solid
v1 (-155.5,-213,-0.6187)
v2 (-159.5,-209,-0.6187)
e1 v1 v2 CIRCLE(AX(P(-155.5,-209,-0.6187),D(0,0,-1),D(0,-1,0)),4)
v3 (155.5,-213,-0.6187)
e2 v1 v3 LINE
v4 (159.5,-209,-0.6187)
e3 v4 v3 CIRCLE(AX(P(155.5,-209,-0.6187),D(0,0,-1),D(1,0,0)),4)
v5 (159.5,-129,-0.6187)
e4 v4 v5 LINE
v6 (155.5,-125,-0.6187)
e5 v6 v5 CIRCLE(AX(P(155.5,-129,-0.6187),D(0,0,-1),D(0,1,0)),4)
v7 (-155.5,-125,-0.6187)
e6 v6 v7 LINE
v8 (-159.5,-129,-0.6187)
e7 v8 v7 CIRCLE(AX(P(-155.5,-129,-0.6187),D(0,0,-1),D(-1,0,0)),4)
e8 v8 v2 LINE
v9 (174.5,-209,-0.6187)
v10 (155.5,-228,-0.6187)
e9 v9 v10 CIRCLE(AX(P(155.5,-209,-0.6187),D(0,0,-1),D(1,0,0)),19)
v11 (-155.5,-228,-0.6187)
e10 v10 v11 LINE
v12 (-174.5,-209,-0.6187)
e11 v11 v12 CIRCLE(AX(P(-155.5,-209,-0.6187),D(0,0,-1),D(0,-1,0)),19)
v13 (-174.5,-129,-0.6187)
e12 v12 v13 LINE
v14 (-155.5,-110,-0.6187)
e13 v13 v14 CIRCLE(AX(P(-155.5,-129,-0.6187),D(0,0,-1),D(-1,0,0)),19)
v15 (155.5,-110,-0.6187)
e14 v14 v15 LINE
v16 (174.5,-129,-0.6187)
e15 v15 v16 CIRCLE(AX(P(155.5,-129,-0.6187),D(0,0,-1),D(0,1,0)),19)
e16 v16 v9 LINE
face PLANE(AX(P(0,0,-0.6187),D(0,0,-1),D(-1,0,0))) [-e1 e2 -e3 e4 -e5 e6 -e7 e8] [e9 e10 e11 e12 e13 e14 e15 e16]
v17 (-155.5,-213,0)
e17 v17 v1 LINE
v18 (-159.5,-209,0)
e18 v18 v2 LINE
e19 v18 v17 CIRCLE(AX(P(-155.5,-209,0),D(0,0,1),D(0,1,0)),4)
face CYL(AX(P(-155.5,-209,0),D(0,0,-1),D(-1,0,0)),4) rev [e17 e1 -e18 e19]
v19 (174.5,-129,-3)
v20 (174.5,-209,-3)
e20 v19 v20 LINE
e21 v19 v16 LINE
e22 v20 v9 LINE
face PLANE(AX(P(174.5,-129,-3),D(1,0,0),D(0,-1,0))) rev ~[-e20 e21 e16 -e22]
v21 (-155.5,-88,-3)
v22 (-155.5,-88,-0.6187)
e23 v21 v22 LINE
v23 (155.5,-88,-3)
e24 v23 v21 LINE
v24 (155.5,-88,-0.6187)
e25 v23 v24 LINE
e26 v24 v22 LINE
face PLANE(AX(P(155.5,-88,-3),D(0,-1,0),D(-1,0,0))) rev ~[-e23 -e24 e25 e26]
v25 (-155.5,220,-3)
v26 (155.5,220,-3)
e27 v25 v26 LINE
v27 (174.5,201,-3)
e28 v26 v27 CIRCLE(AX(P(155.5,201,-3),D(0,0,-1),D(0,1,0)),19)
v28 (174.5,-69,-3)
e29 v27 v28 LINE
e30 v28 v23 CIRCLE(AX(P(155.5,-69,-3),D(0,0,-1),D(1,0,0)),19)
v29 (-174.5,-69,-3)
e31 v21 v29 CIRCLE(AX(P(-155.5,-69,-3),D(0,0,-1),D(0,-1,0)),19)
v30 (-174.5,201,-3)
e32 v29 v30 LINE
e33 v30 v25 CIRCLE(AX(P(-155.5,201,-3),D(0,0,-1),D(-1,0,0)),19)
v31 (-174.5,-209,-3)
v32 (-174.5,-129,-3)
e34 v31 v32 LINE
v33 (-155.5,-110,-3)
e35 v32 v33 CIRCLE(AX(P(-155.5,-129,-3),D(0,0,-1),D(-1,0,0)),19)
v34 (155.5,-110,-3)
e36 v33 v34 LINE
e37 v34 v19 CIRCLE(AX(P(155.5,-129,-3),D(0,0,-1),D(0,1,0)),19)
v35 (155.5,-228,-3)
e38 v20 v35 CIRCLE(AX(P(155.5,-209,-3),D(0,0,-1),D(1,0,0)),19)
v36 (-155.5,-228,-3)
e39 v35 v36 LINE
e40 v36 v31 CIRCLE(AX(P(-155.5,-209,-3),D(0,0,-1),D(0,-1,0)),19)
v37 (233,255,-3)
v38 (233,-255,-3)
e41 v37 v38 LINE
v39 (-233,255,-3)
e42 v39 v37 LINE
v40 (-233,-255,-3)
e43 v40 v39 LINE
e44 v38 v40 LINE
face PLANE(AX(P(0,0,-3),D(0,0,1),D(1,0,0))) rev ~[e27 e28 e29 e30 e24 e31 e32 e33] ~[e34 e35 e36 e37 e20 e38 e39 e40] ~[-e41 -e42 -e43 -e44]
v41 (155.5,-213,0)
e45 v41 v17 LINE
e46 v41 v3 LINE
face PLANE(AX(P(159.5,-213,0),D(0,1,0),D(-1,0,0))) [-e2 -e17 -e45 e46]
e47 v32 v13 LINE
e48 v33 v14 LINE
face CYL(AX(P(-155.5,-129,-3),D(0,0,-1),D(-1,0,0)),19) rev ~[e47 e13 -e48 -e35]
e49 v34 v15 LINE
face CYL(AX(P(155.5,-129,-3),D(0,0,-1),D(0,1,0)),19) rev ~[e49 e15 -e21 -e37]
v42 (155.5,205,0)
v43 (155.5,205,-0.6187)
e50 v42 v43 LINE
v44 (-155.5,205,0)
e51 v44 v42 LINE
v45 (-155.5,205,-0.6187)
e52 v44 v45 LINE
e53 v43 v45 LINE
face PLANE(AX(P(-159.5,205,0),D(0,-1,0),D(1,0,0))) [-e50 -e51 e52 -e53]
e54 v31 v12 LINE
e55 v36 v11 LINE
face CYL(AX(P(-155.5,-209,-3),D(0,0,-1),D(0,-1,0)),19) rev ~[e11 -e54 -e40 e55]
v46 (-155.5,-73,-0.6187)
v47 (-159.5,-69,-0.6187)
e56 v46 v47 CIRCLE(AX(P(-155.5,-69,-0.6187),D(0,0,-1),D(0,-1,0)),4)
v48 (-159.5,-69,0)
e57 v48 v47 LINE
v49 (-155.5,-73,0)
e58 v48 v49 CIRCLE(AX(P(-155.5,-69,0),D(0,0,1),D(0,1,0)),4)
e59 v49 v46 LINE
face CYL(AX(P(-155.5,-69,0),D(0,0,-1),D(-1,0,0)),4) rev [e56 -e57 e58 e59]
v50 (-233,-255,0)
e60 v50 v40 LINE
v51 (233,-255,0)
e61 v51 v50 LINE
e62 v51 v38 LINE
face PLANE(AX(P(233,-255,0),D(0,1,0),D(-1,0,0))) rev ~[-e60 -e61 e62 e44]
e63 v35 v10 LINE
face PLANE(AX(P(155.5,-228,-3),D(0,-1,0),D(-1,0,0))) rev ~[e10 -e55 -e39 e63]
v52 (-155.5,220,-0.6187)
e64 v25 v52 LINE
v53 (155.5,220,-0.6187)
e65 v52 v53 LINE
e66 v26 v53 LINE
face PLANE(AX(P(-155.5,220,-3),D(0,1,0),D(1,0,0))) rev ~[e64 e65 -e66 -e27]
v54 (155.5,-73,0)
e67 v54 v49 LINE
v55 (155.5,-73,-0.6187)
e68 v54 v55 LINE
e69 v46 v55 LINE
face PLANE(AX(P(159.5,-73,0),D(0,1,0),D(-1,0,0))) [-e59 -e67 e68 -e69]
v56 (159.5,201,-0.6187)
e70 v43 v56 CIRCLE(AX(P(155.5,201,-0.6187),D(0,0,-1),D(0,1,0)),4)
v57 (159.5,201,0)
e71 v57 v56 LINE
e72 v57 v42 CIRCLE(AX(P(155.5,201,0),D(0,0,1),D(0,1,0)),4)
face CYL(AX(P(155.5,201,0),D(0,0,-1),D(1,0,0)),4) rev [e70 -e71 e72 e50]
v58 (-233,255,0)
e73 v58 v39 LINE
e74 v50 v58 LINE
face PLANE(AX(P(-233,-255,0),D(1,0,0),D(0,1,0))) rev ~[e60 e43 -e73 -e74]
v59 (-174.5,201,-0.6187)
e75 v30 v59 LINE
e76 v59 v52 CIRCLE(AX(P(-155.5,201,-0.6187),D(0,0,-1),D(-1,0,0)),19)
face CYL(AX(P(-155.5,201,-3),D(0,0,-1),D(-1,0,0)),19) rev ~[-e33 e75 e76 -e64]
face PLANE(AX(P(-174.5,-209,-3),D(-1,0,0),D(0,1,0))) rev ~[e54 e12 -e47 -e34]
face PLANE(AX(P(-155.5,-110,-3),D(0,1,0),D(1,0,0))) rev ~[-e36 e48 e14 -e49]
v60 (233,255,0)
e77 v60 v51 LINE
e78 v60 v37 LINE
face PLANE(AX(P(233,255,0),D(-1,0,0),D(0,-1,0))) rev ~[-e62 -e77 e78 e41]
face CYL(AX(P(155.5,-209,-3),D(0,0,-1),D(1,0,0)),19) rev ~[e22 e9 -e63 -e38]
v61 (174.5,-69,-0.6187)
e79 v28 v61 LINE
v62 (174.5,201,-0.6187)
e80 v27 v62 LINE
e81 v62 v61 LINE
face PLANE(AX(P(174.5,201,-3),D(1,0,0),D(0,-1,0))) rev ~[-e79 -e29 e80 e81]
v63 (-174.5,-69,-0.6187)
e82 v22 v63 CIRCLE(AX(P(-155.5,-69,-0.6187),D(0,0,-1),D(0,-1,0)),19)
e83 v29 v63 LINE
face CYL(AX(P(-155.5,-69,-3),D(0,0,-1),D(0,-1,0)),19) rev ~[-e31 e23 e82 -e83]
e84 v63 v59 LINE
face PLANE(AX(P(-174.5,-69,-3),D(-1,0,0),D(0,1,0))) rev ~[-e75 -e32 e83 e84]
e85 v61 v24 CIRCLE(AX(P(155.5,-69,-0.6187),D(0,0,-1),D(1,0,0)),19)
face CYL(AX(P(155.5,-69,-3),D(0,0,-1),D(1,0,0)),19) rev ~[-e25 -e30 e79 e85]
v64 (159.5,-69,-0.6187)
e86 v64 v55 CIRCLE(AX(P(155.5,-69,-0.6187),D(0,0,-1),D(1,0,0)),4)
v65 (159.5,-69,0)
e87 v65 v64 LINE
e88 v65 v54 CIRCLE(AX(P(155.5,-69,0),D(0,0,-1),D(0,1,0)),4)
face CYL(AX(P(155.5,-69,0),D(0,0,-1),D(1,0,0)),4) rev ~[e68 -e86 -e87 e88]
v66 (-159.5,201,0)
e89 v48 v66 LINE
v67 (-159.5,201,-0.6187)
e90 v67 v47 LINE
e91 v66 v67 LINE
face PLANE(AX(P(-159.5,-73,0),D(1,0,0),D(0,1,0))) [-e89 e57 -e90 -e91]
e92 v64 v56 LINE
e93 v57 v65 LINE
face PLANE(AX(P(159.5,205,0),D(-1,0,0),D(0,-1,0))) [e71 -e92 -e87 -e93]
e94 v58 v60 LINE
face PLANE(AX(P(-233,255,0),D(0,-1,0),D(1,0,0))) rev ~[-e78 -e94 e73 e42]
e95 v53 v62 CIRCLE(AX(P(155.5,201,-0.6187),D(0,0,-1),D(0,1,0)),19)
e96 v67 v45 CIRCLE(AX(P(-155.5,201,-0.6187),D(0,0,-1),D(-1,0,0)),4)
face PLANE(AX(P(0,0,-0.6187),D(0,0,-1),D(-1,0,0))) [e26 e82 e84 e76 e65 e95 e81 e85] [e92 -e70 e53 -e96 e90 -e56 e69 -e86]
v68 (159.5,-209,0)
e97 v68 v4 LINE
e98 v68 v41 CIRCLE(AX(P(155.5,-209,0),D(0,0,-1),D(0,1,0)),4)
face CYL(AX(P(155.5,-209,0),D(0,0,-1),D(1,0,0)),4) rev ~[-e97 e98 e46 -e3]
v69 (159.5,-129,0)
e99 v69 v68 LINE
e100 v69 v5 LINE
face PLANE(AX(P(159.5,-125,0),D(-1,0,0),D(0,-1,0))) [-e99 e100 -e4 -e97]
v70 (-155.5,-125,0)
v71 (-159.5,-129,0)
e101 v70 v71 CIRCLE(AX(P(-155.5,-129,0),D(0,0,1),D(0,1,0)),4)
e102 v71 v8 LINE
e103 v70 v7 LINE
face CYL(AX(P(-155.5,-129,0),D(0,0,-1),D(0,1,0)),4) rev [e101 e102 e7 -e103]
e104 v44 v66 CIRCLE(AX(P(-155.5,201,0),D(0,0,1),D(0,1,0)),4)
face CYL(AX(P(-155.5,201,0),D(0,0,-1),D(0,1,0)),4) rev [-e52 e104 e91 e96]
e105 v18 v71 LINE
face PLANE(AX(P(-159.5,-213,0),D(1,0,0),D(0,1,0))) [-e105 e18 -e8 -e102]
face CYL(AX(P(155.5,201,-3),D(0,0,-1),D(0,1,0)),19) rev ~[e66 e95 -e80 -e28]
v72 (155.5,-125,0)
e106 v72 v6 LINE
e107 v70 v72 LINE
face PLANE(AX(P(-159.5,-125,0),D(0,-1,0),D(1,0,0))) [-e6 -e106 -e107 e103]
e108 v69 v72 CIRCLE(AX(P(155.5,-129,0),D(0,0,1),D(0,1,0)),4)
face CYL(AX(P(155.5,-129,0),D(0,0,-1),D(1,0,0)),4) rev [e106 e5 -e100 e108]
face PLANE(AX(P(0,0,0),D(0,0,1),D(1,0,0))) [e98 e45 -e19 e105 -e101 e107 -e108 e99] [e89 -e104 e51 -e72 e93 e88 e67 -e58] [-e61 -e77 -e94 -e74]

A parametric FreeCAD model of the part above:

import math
import FreeCAD as App
import Part
import Sketcher

V = App.Vector


def edges_at(feature, points):
    """Names of the edges that pass closest to the given points."""
    edges = feature.Shape.Edges
    near = lambda p: min(range(len(edges)), key=lambda i: edges[i].distToShape(Part.Vertex(*p))[0])
    return sorted({f"Edge{near(p) + 1}" for p in points})

doc = App.newDocument("Part")
body = doc.addObject("PartDesign::Body", "Body")

# Sketch on XY plane
sketch1 = doc.addObject("Sketcher::SketchObject", "Sketch")
body.addObject(sketch1)
sketch1.AttachmentSupport = (doc.XY_Plane, [""])
sketch1.MapMode = "FlatFace"
sketch1.addGeometry([
    Part.LineSegment(V(-233, -255, 0), V(233, -255, 0)),
    Part.LineSegment(V(233, -255, 0), V(233, 255, 0)),
    Part.LineSegment(V(233, 255, 0), V(-233, 255, 0)),
    Part.LineSegment(V(-233, 255, 0), V(-233, -255, 0)),
], False)
sketch1.addConstraint([
    Sketcher.Constraint("Coincident", 0, 2, 1, 1),
    Sketcher.Constraint("Coincident", 1, 2, 2, 1),
    Sketcher.Constraint("Coincident", 2, 2, 3, 1),
    Sketcher.Constraint("Coincident", 3, 2, 0, 1),
    Sketcher.Constraint("Horizontal", 0),
    Sketcher.Constraint("Vertical", 1),
    Sketcher.Constraint("Horizontal", 2),
    Sketcher.Constraint("Vertical", 3),
    Sketcher.Constraint("Symmetric", 0, 2, 2, 2, -1, 1),
    Sketcher.Constraint("DistanceX", 0, 1, 0, 2, 466.0),
    Sketcher.Constraint("DistanceY", 1, 1, 1, 2, 510.0),
])
pad1 = doc.addObject("PartDesign::Pad", "Pad")
body.addObject(pad1)
pad1.Profile = sketch1
pad1.Length = 3
pad1.Reversed = True

# Sketch on XY plane
sketch2 = doc.addObject("Sketcher::SketchObject", "Sketch001")
body.addObject(sketch2)
sketch2.AttachmentSupport = (doc.XY_Plane, [""])
sketch2.MapMode = "FlatFace"
sketch2.addGeometry([
    Part.LineSegment(V(-160, -73, 0), V(160, -73, 0)),  # 0
    Part.LineSegment(V(160, -73, 0), V(160, 205, 0)),  # 1
    Part.LineSegment(V(160, 205, 0), V(-160, 205, 0)),  # 2
    Part.LineSegment(V(-160, 205, 0), V(-160, -73, 0)),  # 3
    Part.LineSegment(V(-160, -213, 0), V(160, -213, 0)),  # 4
    Part.LineSegment(V(160, -213, 0), V(160, -125, 0)),  # 5
    Part.LineSegment(V(160, -125, 0), V(-160, -125, 0)),  # 6
    Part.LineSegment(V(-160, -125, 0), V(-160, -213, 0)),  # 7
], False)
sketch2.addConstraint([
    Sketcher.Constraint("Coincident", 0, 2, 1, 1),
    Sketcher.Constraint("Coincident", 1, 2, 2, 1),
    Sketcher.Constraint("Coincident", 2, 2, 3, 1),
    Sketcher.Constraint("Coincident", 3, 2, 0, 1),
    Sketcher.Constraint("Coincident", 4, 2, 5, 1),
    Sketcher.Constraint("Coincident", 5, 2, 6, 1),
    Sketcher.Constraint("Coincident", 6, 2, 7, 1),
    Sketcher.Constraint("Coincident", 7, 2, 4, 1),
    Sketcher.Constraint("Horizontal", 0),
    Sketcher.Constraint("Vertical", 1),
    Sketcher.Constraint("Horizontal", 2),
    Sketcher.Constraint("Vertical", 3),
    Sketcher.Constraint("Horizontal", 4),
    Sketcher.Constraint("Vertical", 5),
    Sketcher.Constraint("Horizontal", 6),
    Sketcher.Constraint("Vertical", 7),
    Sketcher.Constraint("Vertical", 1, 2, 4, 2),
    Sketcher.Constraint("Vertical", 3, 2, 6, 2),
    Sketcher.Constraint("DistanceY", 1, 1, 1, 2, 278.0),
    Sketcher.Constraint("DistanceY", 5, 1, 5, 2, 88.0),
    Sketcher.Constraint("DistanceY", 5, 2, 0, 2, 52.0),
    Sketcher.Constraint("DistanceX", 0, 1, 0, 2, 319.0),
    Sketcher.Constraint("DistanceY", 0, 2, -1, 1, 73.0),
    Sketcher.Constraint("DistanceX", -1, 1, 0, 2, 159.5),
])
pocket1 = doc.addObject("PartDesign::Pocket", "Pocket")
body.addObject(pocket1)
pocket1.Profile = sketch2
pocket1.Type = "ThroughAll"
doc.recompute()

fillet = doc.addObject("PartDesign::Fillet", "Fillet")
body.addObject(fillet)
fillet.Base = (pocket1, edges_at(pocket1, [
    (-159.5, 205, -1.5),
    (159.5, 205, -1.5),
    (159.5, -73, -1.5),
    (-159.5, -73, -1.5),
    (-159.5, -125, -1.5),
    (159.5, -125, -1.5),
    (159.5, -213, -1.5),
    (-159.5, -213, -1.5),
]))
fillet.Radius = 4

# Sketch on XY plane
sketch3 = doc.addObject("Sketcher::SketchObject", "Sketch002")
body.addObject(sketch3)
sketch3.AttachmentSupport = (doc.XY_Plane, [""])
sketch3.MapMode = "FlatFace"
sketch3.AttachmentOffset = App.Placement(V(0, 0, -3), App.Rotation())
sketch3.addGeometry([
    Part.ArcOfCircle(Part.Circle(V(155.5, 201, 0), V(0, 0, 1), 19), math.radians(0), math.radians(90)),  # 0
    Part.LineSegment(V(174.5, 201, 0), V(174.5, -69, 0)),  # 1
    Part.ArcOfCircle(Part.Circle(V(155.5, -69, 0), V(0, 0, 1), 19), math.radians(-90), math.radians(0)),  # 2
    Part.LineSegment(V(155.5, -88, 0), V(-155.5, -88, 0)),  # 3
    Part.ArcOfCircle(Part.Circle(V(-155.5, -69, 0), V(0, 0, 1), 19), math.radians(180), math.radians(270)),  # 4
    Part.LineSegment(V(-174.5, -69, 0), V(-174.5, 201, 0)),  # 5
    Part.ArcOfCircle(Part.Circle(V(-155.5, 201, 0), V(0, 0, 1), 19), math.radians(90), math.radians(180)),  # 6
    Part.LineSegment(V(-155.5, 220, 0), V(155.5, 220, 0)),  # 7
    Part.ArcOfCircle(Part.Circle(V(-155.5, 201, 0), V(0, 0, 1), 4), math.radians(90), math.radians(180)),  # 8
    Part.LineSegment(V(-159.5, 201, 0), V(-159.5, -69, 0)),  # 9
    Part.ArcOfCircle(Part.Circle(V(-155.5, -69, 0), V(0, 0, 1), 4), math.radians(180), math.radians(270)),  # 10
    Part.LineSegment(V(-155.5, -73, 0), V(155.5, -73, 0)),  # 11
    Part.ArcOfCircle(Part.Circle(V(155.5, -69, 0), V(0, 0, 1), 4), math.radians(-90), math.radians(0)),  # 12
    Part.LineSegment(V(159.5, -69, 0), V(159.5, 201, 0)),  # 13
    Part.ArcOfCircle(Part.Circle(V(155.5, 201, 0), V(0, 0, 1), 4), math.radians(0), math.radians(90)),  # 14
    Part.LineSegment(V(155.5, 205, 0), V(-155.5, 205, 0)),  # 15
    Part.ArcOfCircle(Part.Circle(V(-155.5, -129, 0), V(0, 0, 1), 19), math.radians(90), math.radians(180)),  # 16
    Part.LineSegment(V(-155.5, -110, 0), V(155.5, -110, 0)),  # 17
    Part.ArcOfCircle(Part.Circle(V(155.5, -129, 0), V(0, 0, 1), 19), math.radians(0), math.radians(90)),  # 18
    Part.LineSegment(V(174.5, -129, 0), V(174.5, -209, 0)),  # 19
    Part.ArcOfCircle(Part.Circle(V(155.5, -209, 0), V(0, 0, 1), 19), math.radians(-90), math.radians(0)),  # 20
    Part.LineSegment(V(155.5, -228, 0), V(-155.5, -228, 0)),  # 21
    Part.ArcOfCircle(Part.Circle(V(-155.5, -209, 0), V(0, 0, 1), 19), math.radians(180), math.radians(270)),  # 22
    Part.LineSegment(V(-174.5, -209, 0), V(-174.5, -129, 0)),  # 23
    Part.ArcOfCircle(Part.Circle(V(-155.5, -129, 0), V(0, 0, 1), 4), math.radians(90), math.radians(180)),  # 24
    Part.LineSegment(V(-159.5, -129, 0), V(-159.5, -209, 0)),  # 25
    Part.ArcOfCircle(Part.Circle(V(-155.5, -209, 0), V(0, 0, 1), 4), math.radians(180), math.radians(270)),  # 26
    Part.LineSegment(V(-155.5, -213, 0), V(155.5, -213, 0)),  # 27
    Part.ArcOfCircle(Part.Circle(V(155.5, -209, 0), V(0, 0, 1), 4), math.radians(-90), math.radians(0)),  # 28
    Part.LineSegment(V(159.5, -209, 0), V(159.5, -129, 0)),  # 29
    Part.ArcOfCircle(Part.Circle(V(155.5, -129, 0), V(0, 0, 1), 4), math.radians(0), math.radians(90)),  # 30
    Part.LineSegment(V(155.5, -125, 0), V(-155.5, -125, 0)),  # 31
], False)
sketch3.addConstraint([
    Sketcher.Constraint("Tangent", 0, 1, 1, 1),
    Sketcher.Constraint("Tangent", 1, 2, 2, 2),
    Sketcher.Constraint("Tangent", 2, 1, 3, 1),
    Sketcher.Constraint("Tangent", 3, 2, 4, 2),
    Sketcher.Constraint("Tangent", 4, 1, 5, 1),
    Sketcher.Constraint("Tangent", 5, 2, 6, 2),
    Sketcher.Constraint("Tangent", 6, 1, 7, 1),
    Sketcher.Constraint("Tangent", 7, 2, 0, 2),
    Sketcher.Constraint("Tangent", 8, 2, 9, 1),
    Sketcher.Constraint("Tangent", 9, 2, 10, 1),
    Sketcher.Constraint("Tangent", 10, 2, 11, 1),
    Sketcher.Constraint("Tangent", 11, 2, 12, 1),
    Sketcher.Constraint("Tangent", 12, 2, 13, 1),
    Sketcher.Constraint("Tangent", 13, 2, 14, 1),
    Sketcher.Constraint("Tangent", 14, 2, 15, 1),
    Sketcher.Constraint("Tangent", 15, 2, 8, 1),
    Sketcher.Constraint("Tangent", 16, 1, 17, 1),
    Sketcher.Constraint("Tangent", 17, 2, 18, 2),
    Sketcher.Constraint("Tangent", 18, 1, 19, 1),
    Sketcher.Constraint("Tangent", 19, 2, 20, 2),
    Sketcher.Constraint("Tangent", 20, 1, 21, 1),
    Sketcher.Constraint("Tangent", 21, 2, 22, 2),
    Sketcher.Constraint("Tangent", 22, 1, 23, 1),
    Sketcher.Constraint("Tangent", 23, 2, 16, 2),
    Sketcher.Constraint("Tangent", 24, 2, 25, 1),
    Sketcher.Constraint("Tangent", 25, 2, 26, 1),
    Sketcher.Constraint("Tangent", 26, 2, 27, 1),
    Sketcher.Constraint("Tangent", 27, 2, 28, 1),
    Sketcher.Constraint("Tangent", 28, 2, 29, 1),
    Sketcher.Constraint("Tangent", 29, 2, 30, 1),
    Sketcher.Constraint("Tangent", 30, 2, 31, 1),
    Sketcher.Constraint("Tangent", 31, 2, 24, 1),
    Sketcher.Constraint("Vertical", 1),
    Sketcher.Constraint("Horizontal", 3),
    Sketcher.Constraint("Vertical", 5),
    Sketcher.Constraint("Horizontal", 7),
    Sketcher.Constraint("Vertical", 9),
    Sketcher.Constraint("Horizontal", 11),
    Sketcher.Constraint("Vertical", 13),
    Sketcher.Constraint("Horizontal", 15),
    Sketcher.Constraint("Horizontal", 17),
    Sketcher.Constraint("Vertical", 19),
    Sketcher.Constraint("Horizontal", 21),
    Sketcher.Constraint("Vertical", 23),
    Sketcher.Constraint("Vertical", 25),
    Sketcher.Constraint("Horizontal", 27),
    Sketcher.Constraint("Vertical", 29),
    Sketcher.Constraint("Horizontal", 31),
    Sketcher.Constraint("Coincident", 8, 3, 6, 3),
    Sketcher.Constraint("Coincident", 10, 3, 4, 3),
    Sketcher.Constraint("Coincident", 12, 3, 2, 3),
    Sketcher.Constraint("Coincident", 24, 3, 16, 3),
    Sketcher.Constraint("Coincident", 26, 3, 22, 3),
    Sketcher.Constraint("Coincident", 28, 3, 20, 3),
    Sketcher.Constraint("Equal", 0, 2),
    Sketcher.Constraint("Equal", 2, 4),
    Sketcher.Constraint("Equal", 4, 6),
    Sketcher.Constraint("Equal", 12, 14),
    Sketcher.Constraint("Equal", 6, 16),
    Sketcher.Constraint("Equal", 16, 18),
    Sketcher.Constraint("Equal", 18, 20),
    Sketcher.Constraint("Equal", 20, 22),
    Sketcher.Constraint("Equal", 14, 24),
    Sketcher.Constraint("Equal", 28, 30),
    Sketcher.Constraint("Vertical", 10, 3, 16, 3),
    Sketcher.Constraint("Vertical", 14, 3, 18, 3),
    Sketcher.Constraint("Radius", 0, 19.0),
    Sketcher.Constraint("Radius", 8, 4.0),
    Sketcher.Constraint("DistanceX", 3, 2, 3, 1, 311.0),
    Sketcher.Constraint("DistanceY", 1, 2, 1, 1, 270.0),
    Sketcher.Constraint("DistanceY", 19, 2, 19, 1, 80.0),
    Sketcher.Constraint("DistanceY", -1, 1, 0, 3, 201.0),
    Sketcher.Constraint("DistanceY", 16, 3, -1, 1, 129.0),
    Sketcher.Constraint("DistanceX", -1, 1, 0, 3, 155.5),
])
pocket2 = doc.addObject("PartDesign::Pocket", "Pocket001")
body.addObject(pocket2)
pocket2.Profile = sketch3
pocket2.Length = 2.3813
pocket2.Reversed = True

doc.recompute()
